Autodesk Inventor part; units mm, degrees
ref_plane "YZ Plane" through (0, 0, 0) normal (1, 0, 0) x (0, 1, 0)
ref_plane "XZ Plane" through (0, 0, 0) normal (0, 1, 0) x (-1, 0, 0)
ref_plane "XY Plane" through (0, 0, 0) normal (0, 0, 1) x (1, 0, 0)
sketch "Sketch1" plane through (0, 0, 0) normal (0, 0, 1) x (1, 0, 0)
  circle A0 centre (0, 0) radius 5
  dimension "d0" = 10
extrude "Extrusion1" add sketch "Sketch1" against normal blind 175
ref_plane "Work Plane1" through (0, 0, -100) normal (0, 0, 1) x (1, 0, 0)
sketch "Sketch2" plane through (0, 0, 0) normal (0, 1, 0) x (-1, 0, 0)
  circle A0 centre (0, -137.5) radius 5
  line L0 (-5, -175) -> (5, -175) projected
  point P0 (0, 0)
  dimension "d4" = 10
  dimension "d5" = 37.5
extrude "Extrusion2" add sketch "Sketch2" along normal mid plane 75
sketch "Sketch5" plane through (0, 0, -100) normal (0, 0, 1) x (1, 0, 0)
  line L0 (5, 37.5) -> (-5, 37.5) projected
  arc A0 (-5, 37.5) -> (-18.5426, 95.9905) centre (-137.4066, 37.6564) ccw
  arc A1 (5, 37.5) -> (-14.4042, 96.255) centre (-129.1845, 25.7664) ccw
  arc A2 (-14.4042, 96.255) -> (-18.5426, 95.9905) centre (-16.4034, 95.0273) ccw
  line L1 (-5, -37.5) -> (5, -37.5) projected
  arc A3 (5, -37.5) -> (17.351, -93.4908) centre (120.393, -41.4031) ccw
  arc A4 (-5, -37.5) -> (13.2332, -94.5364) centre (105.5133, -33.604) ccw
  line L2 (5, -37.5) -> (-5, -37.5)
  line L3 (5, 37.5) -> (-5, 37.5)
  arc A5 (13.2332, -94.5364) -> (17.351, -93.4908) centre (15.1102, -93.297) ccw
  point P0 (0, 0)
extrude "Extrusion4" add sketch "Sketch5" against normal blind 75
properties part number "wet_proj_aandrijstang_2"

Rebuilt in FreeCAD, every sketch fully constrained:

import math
import FreeCAD as App
import Part
import Sketcher
from FreeCAD import Vector

doc = App.newDocument("Part")
body = doc.addObject("PartDesign::Body", "Body")

sketch1 = body.newObject("Sketcher::SketchObject", "Sketch")
sketch1.AttachmentSupport = (doc.getObject("XY_Plane"), [""])
sketch1.MapMode = "FlatFace"
sketch1.addGeometry(Part.Circle(Vector(0, 0, 0), Vector(0, 0, 1), 5), False)
sketch1.addConstraint(Sketcher.Constraint("Coincident", 0, 3, -1, 1))
sketch1.addConstraint(Sketcher.Constraint("Diameter", 0, 10.0))
pad1 = body.newObject("PartDesign::Pad", "Pad")
pad1.Profile = sketch1
pad1.Length = 175
pad1.Reversed = True

sketch2 = body.newObject("Sketcher::SketchObject", "Sketch001")
sketch2.AttachmentSupport = (doc.getObject("XZ_Plane"), [""])
sketch2.MapMode = "FlatFace"
sketch2.addGeometry(Part.Circle(Vector(0, -137.5, 0), Vector(0, 0, 1), 5), False)
sketch2.addConstraint(Sketcher.Constraint("PointOnObject", 0, 3, -2))
sketch2.addConstraint(Sketcher.Constraint("Diameter", 0, 10.0))
sketch2.addConstraint(Sketcher.Constraint("DistanceY", 0, 3, -1, 1, 137.5))
pad2 = body.newObject("PartDesign::Pad", "Pad001")
pad2.Profile = sketch2
pad2.Length = 75
pad2.Midplane = True

sketch3 = body.newObject("Sketcher::SketchObject", "Sketch002")
sketch3.AttachmentSupport = (doc.getObject("XY_Plane"), [""])
sketch3.MapMode = "FlatFace"
sketch3.AttachmentOffset = App.Placement(Vector(0, 0, -100), App.Rotation())
sketch3.addGeometry(Part.LineSegment(Vector(-5, 37.5, 0), Vector(5, 37.5, 0)), False)
sketch3.addGeometry(Part.ArcOfCircle(Part.Circle(Vector(-129.1845, 25.7664, 0), Vector(0, 0, 1), 134.696538), math.radians(4.997448), math.radians(31.554817)), False)
sketch3.addGeometry(Part.ArcOfCircle(Part.Circle(Vector(-16.4034, 95.0273, 0), Vector(0, 0, 1), 2.346071), math.radians(31.553904), math.radians(155.759783)), False)
sketch3.addGeometry(Part.ArcOfCircle(Part.Circle(Vector(-137.405551, 37.656519, 0), Vector(0, 0, 1), 132.405643), math.radians(-0.06773), math.radians(26.140268)), False)
sketch3.addGeometry(Part.LineSegment(Vector(5, -37.5, 0), Vector(-5, -37.5, 0)), False)
sketch3.addGeometry(Part.ArcOfCircle(Part.Circle(Vector(105.5133, -33.604, 0), Vector(0, 0, 1), 110.581953), math.radians(-177.980949), math.radians(-146.563282)), False)
sketch3.addGeometry(Part.ArcOfCircle(Part.Circle(Vector(15.1102, -93.297, 0), Vector(0, 0, 1), 2.249276), math.radians(-146.562858), math.radians(-4.943038)), False)
sketch3.addGeometry(Part.ArcOfCircle(Part.Circle(Vector(120.393, -41.4031, 0), Vector(0, 0, 1), 115.458991), math.radians(178.062743), math.radians(206.816584)), False)
sketch3.addConstraint(Sketcher.Constraint("Coincident", 0, 2, 1, 1))
sketch3.addConstraint(Sketcher.Constraint("Tangent", 1, 2, 2, 1))
sketch3.addConstraint(Sketcher.Constraint("Coincident", 2, 2, 3, 2))
sketch3.addConstraint(Sketcher.Constraint("Coincident", 3, 1, 0, 1))
sketch3.addConstraint(Sketcher.Constraint("Coincident", 4, 2, 5, 1))
sketch3.addConstraint(Sketcher.Constraint("Tangent", 5, 2, 6, 1))
sketch3.addConstraint(Sketcher.Constraint("Coincident", 6, 2, 7, 2))
sketch3.addConstraint(Sketcher.Constraint("Coincident", 7, 1, 4, 1))
sketch3.addConstraint(Sketcher.Constraint("Horizontal", 0))
sketch3.addConstraint(Sketcher.Constraint("Horizontal", 4))
sketch3.addConstraint(Sketcher.Constraint("Symmetric", 0, 2, 4, 2, -1, 1))
sketch3.addConstraint(Sketcher.Constraint("Vertical", 3, 1, 4, 2))
sketch3.addConstraint(Sketcher.Constraint("Vertical", 0, 2, 7, 1))
sketch3.addConstraint(Sketcher.Constraint("DistanceX", 0, 1, 0, 2, 10.0))
sketch3.addConstraint(Sketcher.Constraint("Radius", 2, 2.346))
sketch3.addConstraint(Sketcher.Constraint("Radius", 5, 110.582))
sketch3.addConstraint(Sketcher.Constraint("Radius", 7, 115.459))
sketch3.addConstraint(Sketcher.Constraint("DistanceY", 4, 2, 3, 1, 75.0))
sketch3.addConstraint(Sketcher.Constraint("Radius", 1, 134.6965))
sketch3.addConstraint(Sketcher.Constraint("Radius", 3, 132.4056))
sketch3.addConstraint(Sketcher.Constraint("Radius", 6, 2.2493))
sketch3.addConstraint(Sketcher.Constraint("DistanceY", 1, 3, 3, 3, 11.89))
sketch3.addConstraint(Sketcher.Constraint("DistanceX", 5, 2, 5, 3, 92.28))
sketch3.addConstraint(Sketcher.Constraint("DistanceY", 5, 3, -1, 1, 33.604))
sketch3.addConstraint(Sketcher.Constraint("DistanceX", -1, 1, 7, 3, 120.393))
sketch3.addConstraint(Sketcher.Constraint("DistanceY", -1, 1, 1, 2, 96.255))
sketch3.addConstraint(Sketcher.Constraint("DistanceX", 1, 3, 2, 3, 112.781))
pad3 = body.newObject("PartDesign::Pad", "Pad002")
pad3.Profile = sketch3
pad3.Length = 75
pad3.Reversed = True

doc.recompute()
